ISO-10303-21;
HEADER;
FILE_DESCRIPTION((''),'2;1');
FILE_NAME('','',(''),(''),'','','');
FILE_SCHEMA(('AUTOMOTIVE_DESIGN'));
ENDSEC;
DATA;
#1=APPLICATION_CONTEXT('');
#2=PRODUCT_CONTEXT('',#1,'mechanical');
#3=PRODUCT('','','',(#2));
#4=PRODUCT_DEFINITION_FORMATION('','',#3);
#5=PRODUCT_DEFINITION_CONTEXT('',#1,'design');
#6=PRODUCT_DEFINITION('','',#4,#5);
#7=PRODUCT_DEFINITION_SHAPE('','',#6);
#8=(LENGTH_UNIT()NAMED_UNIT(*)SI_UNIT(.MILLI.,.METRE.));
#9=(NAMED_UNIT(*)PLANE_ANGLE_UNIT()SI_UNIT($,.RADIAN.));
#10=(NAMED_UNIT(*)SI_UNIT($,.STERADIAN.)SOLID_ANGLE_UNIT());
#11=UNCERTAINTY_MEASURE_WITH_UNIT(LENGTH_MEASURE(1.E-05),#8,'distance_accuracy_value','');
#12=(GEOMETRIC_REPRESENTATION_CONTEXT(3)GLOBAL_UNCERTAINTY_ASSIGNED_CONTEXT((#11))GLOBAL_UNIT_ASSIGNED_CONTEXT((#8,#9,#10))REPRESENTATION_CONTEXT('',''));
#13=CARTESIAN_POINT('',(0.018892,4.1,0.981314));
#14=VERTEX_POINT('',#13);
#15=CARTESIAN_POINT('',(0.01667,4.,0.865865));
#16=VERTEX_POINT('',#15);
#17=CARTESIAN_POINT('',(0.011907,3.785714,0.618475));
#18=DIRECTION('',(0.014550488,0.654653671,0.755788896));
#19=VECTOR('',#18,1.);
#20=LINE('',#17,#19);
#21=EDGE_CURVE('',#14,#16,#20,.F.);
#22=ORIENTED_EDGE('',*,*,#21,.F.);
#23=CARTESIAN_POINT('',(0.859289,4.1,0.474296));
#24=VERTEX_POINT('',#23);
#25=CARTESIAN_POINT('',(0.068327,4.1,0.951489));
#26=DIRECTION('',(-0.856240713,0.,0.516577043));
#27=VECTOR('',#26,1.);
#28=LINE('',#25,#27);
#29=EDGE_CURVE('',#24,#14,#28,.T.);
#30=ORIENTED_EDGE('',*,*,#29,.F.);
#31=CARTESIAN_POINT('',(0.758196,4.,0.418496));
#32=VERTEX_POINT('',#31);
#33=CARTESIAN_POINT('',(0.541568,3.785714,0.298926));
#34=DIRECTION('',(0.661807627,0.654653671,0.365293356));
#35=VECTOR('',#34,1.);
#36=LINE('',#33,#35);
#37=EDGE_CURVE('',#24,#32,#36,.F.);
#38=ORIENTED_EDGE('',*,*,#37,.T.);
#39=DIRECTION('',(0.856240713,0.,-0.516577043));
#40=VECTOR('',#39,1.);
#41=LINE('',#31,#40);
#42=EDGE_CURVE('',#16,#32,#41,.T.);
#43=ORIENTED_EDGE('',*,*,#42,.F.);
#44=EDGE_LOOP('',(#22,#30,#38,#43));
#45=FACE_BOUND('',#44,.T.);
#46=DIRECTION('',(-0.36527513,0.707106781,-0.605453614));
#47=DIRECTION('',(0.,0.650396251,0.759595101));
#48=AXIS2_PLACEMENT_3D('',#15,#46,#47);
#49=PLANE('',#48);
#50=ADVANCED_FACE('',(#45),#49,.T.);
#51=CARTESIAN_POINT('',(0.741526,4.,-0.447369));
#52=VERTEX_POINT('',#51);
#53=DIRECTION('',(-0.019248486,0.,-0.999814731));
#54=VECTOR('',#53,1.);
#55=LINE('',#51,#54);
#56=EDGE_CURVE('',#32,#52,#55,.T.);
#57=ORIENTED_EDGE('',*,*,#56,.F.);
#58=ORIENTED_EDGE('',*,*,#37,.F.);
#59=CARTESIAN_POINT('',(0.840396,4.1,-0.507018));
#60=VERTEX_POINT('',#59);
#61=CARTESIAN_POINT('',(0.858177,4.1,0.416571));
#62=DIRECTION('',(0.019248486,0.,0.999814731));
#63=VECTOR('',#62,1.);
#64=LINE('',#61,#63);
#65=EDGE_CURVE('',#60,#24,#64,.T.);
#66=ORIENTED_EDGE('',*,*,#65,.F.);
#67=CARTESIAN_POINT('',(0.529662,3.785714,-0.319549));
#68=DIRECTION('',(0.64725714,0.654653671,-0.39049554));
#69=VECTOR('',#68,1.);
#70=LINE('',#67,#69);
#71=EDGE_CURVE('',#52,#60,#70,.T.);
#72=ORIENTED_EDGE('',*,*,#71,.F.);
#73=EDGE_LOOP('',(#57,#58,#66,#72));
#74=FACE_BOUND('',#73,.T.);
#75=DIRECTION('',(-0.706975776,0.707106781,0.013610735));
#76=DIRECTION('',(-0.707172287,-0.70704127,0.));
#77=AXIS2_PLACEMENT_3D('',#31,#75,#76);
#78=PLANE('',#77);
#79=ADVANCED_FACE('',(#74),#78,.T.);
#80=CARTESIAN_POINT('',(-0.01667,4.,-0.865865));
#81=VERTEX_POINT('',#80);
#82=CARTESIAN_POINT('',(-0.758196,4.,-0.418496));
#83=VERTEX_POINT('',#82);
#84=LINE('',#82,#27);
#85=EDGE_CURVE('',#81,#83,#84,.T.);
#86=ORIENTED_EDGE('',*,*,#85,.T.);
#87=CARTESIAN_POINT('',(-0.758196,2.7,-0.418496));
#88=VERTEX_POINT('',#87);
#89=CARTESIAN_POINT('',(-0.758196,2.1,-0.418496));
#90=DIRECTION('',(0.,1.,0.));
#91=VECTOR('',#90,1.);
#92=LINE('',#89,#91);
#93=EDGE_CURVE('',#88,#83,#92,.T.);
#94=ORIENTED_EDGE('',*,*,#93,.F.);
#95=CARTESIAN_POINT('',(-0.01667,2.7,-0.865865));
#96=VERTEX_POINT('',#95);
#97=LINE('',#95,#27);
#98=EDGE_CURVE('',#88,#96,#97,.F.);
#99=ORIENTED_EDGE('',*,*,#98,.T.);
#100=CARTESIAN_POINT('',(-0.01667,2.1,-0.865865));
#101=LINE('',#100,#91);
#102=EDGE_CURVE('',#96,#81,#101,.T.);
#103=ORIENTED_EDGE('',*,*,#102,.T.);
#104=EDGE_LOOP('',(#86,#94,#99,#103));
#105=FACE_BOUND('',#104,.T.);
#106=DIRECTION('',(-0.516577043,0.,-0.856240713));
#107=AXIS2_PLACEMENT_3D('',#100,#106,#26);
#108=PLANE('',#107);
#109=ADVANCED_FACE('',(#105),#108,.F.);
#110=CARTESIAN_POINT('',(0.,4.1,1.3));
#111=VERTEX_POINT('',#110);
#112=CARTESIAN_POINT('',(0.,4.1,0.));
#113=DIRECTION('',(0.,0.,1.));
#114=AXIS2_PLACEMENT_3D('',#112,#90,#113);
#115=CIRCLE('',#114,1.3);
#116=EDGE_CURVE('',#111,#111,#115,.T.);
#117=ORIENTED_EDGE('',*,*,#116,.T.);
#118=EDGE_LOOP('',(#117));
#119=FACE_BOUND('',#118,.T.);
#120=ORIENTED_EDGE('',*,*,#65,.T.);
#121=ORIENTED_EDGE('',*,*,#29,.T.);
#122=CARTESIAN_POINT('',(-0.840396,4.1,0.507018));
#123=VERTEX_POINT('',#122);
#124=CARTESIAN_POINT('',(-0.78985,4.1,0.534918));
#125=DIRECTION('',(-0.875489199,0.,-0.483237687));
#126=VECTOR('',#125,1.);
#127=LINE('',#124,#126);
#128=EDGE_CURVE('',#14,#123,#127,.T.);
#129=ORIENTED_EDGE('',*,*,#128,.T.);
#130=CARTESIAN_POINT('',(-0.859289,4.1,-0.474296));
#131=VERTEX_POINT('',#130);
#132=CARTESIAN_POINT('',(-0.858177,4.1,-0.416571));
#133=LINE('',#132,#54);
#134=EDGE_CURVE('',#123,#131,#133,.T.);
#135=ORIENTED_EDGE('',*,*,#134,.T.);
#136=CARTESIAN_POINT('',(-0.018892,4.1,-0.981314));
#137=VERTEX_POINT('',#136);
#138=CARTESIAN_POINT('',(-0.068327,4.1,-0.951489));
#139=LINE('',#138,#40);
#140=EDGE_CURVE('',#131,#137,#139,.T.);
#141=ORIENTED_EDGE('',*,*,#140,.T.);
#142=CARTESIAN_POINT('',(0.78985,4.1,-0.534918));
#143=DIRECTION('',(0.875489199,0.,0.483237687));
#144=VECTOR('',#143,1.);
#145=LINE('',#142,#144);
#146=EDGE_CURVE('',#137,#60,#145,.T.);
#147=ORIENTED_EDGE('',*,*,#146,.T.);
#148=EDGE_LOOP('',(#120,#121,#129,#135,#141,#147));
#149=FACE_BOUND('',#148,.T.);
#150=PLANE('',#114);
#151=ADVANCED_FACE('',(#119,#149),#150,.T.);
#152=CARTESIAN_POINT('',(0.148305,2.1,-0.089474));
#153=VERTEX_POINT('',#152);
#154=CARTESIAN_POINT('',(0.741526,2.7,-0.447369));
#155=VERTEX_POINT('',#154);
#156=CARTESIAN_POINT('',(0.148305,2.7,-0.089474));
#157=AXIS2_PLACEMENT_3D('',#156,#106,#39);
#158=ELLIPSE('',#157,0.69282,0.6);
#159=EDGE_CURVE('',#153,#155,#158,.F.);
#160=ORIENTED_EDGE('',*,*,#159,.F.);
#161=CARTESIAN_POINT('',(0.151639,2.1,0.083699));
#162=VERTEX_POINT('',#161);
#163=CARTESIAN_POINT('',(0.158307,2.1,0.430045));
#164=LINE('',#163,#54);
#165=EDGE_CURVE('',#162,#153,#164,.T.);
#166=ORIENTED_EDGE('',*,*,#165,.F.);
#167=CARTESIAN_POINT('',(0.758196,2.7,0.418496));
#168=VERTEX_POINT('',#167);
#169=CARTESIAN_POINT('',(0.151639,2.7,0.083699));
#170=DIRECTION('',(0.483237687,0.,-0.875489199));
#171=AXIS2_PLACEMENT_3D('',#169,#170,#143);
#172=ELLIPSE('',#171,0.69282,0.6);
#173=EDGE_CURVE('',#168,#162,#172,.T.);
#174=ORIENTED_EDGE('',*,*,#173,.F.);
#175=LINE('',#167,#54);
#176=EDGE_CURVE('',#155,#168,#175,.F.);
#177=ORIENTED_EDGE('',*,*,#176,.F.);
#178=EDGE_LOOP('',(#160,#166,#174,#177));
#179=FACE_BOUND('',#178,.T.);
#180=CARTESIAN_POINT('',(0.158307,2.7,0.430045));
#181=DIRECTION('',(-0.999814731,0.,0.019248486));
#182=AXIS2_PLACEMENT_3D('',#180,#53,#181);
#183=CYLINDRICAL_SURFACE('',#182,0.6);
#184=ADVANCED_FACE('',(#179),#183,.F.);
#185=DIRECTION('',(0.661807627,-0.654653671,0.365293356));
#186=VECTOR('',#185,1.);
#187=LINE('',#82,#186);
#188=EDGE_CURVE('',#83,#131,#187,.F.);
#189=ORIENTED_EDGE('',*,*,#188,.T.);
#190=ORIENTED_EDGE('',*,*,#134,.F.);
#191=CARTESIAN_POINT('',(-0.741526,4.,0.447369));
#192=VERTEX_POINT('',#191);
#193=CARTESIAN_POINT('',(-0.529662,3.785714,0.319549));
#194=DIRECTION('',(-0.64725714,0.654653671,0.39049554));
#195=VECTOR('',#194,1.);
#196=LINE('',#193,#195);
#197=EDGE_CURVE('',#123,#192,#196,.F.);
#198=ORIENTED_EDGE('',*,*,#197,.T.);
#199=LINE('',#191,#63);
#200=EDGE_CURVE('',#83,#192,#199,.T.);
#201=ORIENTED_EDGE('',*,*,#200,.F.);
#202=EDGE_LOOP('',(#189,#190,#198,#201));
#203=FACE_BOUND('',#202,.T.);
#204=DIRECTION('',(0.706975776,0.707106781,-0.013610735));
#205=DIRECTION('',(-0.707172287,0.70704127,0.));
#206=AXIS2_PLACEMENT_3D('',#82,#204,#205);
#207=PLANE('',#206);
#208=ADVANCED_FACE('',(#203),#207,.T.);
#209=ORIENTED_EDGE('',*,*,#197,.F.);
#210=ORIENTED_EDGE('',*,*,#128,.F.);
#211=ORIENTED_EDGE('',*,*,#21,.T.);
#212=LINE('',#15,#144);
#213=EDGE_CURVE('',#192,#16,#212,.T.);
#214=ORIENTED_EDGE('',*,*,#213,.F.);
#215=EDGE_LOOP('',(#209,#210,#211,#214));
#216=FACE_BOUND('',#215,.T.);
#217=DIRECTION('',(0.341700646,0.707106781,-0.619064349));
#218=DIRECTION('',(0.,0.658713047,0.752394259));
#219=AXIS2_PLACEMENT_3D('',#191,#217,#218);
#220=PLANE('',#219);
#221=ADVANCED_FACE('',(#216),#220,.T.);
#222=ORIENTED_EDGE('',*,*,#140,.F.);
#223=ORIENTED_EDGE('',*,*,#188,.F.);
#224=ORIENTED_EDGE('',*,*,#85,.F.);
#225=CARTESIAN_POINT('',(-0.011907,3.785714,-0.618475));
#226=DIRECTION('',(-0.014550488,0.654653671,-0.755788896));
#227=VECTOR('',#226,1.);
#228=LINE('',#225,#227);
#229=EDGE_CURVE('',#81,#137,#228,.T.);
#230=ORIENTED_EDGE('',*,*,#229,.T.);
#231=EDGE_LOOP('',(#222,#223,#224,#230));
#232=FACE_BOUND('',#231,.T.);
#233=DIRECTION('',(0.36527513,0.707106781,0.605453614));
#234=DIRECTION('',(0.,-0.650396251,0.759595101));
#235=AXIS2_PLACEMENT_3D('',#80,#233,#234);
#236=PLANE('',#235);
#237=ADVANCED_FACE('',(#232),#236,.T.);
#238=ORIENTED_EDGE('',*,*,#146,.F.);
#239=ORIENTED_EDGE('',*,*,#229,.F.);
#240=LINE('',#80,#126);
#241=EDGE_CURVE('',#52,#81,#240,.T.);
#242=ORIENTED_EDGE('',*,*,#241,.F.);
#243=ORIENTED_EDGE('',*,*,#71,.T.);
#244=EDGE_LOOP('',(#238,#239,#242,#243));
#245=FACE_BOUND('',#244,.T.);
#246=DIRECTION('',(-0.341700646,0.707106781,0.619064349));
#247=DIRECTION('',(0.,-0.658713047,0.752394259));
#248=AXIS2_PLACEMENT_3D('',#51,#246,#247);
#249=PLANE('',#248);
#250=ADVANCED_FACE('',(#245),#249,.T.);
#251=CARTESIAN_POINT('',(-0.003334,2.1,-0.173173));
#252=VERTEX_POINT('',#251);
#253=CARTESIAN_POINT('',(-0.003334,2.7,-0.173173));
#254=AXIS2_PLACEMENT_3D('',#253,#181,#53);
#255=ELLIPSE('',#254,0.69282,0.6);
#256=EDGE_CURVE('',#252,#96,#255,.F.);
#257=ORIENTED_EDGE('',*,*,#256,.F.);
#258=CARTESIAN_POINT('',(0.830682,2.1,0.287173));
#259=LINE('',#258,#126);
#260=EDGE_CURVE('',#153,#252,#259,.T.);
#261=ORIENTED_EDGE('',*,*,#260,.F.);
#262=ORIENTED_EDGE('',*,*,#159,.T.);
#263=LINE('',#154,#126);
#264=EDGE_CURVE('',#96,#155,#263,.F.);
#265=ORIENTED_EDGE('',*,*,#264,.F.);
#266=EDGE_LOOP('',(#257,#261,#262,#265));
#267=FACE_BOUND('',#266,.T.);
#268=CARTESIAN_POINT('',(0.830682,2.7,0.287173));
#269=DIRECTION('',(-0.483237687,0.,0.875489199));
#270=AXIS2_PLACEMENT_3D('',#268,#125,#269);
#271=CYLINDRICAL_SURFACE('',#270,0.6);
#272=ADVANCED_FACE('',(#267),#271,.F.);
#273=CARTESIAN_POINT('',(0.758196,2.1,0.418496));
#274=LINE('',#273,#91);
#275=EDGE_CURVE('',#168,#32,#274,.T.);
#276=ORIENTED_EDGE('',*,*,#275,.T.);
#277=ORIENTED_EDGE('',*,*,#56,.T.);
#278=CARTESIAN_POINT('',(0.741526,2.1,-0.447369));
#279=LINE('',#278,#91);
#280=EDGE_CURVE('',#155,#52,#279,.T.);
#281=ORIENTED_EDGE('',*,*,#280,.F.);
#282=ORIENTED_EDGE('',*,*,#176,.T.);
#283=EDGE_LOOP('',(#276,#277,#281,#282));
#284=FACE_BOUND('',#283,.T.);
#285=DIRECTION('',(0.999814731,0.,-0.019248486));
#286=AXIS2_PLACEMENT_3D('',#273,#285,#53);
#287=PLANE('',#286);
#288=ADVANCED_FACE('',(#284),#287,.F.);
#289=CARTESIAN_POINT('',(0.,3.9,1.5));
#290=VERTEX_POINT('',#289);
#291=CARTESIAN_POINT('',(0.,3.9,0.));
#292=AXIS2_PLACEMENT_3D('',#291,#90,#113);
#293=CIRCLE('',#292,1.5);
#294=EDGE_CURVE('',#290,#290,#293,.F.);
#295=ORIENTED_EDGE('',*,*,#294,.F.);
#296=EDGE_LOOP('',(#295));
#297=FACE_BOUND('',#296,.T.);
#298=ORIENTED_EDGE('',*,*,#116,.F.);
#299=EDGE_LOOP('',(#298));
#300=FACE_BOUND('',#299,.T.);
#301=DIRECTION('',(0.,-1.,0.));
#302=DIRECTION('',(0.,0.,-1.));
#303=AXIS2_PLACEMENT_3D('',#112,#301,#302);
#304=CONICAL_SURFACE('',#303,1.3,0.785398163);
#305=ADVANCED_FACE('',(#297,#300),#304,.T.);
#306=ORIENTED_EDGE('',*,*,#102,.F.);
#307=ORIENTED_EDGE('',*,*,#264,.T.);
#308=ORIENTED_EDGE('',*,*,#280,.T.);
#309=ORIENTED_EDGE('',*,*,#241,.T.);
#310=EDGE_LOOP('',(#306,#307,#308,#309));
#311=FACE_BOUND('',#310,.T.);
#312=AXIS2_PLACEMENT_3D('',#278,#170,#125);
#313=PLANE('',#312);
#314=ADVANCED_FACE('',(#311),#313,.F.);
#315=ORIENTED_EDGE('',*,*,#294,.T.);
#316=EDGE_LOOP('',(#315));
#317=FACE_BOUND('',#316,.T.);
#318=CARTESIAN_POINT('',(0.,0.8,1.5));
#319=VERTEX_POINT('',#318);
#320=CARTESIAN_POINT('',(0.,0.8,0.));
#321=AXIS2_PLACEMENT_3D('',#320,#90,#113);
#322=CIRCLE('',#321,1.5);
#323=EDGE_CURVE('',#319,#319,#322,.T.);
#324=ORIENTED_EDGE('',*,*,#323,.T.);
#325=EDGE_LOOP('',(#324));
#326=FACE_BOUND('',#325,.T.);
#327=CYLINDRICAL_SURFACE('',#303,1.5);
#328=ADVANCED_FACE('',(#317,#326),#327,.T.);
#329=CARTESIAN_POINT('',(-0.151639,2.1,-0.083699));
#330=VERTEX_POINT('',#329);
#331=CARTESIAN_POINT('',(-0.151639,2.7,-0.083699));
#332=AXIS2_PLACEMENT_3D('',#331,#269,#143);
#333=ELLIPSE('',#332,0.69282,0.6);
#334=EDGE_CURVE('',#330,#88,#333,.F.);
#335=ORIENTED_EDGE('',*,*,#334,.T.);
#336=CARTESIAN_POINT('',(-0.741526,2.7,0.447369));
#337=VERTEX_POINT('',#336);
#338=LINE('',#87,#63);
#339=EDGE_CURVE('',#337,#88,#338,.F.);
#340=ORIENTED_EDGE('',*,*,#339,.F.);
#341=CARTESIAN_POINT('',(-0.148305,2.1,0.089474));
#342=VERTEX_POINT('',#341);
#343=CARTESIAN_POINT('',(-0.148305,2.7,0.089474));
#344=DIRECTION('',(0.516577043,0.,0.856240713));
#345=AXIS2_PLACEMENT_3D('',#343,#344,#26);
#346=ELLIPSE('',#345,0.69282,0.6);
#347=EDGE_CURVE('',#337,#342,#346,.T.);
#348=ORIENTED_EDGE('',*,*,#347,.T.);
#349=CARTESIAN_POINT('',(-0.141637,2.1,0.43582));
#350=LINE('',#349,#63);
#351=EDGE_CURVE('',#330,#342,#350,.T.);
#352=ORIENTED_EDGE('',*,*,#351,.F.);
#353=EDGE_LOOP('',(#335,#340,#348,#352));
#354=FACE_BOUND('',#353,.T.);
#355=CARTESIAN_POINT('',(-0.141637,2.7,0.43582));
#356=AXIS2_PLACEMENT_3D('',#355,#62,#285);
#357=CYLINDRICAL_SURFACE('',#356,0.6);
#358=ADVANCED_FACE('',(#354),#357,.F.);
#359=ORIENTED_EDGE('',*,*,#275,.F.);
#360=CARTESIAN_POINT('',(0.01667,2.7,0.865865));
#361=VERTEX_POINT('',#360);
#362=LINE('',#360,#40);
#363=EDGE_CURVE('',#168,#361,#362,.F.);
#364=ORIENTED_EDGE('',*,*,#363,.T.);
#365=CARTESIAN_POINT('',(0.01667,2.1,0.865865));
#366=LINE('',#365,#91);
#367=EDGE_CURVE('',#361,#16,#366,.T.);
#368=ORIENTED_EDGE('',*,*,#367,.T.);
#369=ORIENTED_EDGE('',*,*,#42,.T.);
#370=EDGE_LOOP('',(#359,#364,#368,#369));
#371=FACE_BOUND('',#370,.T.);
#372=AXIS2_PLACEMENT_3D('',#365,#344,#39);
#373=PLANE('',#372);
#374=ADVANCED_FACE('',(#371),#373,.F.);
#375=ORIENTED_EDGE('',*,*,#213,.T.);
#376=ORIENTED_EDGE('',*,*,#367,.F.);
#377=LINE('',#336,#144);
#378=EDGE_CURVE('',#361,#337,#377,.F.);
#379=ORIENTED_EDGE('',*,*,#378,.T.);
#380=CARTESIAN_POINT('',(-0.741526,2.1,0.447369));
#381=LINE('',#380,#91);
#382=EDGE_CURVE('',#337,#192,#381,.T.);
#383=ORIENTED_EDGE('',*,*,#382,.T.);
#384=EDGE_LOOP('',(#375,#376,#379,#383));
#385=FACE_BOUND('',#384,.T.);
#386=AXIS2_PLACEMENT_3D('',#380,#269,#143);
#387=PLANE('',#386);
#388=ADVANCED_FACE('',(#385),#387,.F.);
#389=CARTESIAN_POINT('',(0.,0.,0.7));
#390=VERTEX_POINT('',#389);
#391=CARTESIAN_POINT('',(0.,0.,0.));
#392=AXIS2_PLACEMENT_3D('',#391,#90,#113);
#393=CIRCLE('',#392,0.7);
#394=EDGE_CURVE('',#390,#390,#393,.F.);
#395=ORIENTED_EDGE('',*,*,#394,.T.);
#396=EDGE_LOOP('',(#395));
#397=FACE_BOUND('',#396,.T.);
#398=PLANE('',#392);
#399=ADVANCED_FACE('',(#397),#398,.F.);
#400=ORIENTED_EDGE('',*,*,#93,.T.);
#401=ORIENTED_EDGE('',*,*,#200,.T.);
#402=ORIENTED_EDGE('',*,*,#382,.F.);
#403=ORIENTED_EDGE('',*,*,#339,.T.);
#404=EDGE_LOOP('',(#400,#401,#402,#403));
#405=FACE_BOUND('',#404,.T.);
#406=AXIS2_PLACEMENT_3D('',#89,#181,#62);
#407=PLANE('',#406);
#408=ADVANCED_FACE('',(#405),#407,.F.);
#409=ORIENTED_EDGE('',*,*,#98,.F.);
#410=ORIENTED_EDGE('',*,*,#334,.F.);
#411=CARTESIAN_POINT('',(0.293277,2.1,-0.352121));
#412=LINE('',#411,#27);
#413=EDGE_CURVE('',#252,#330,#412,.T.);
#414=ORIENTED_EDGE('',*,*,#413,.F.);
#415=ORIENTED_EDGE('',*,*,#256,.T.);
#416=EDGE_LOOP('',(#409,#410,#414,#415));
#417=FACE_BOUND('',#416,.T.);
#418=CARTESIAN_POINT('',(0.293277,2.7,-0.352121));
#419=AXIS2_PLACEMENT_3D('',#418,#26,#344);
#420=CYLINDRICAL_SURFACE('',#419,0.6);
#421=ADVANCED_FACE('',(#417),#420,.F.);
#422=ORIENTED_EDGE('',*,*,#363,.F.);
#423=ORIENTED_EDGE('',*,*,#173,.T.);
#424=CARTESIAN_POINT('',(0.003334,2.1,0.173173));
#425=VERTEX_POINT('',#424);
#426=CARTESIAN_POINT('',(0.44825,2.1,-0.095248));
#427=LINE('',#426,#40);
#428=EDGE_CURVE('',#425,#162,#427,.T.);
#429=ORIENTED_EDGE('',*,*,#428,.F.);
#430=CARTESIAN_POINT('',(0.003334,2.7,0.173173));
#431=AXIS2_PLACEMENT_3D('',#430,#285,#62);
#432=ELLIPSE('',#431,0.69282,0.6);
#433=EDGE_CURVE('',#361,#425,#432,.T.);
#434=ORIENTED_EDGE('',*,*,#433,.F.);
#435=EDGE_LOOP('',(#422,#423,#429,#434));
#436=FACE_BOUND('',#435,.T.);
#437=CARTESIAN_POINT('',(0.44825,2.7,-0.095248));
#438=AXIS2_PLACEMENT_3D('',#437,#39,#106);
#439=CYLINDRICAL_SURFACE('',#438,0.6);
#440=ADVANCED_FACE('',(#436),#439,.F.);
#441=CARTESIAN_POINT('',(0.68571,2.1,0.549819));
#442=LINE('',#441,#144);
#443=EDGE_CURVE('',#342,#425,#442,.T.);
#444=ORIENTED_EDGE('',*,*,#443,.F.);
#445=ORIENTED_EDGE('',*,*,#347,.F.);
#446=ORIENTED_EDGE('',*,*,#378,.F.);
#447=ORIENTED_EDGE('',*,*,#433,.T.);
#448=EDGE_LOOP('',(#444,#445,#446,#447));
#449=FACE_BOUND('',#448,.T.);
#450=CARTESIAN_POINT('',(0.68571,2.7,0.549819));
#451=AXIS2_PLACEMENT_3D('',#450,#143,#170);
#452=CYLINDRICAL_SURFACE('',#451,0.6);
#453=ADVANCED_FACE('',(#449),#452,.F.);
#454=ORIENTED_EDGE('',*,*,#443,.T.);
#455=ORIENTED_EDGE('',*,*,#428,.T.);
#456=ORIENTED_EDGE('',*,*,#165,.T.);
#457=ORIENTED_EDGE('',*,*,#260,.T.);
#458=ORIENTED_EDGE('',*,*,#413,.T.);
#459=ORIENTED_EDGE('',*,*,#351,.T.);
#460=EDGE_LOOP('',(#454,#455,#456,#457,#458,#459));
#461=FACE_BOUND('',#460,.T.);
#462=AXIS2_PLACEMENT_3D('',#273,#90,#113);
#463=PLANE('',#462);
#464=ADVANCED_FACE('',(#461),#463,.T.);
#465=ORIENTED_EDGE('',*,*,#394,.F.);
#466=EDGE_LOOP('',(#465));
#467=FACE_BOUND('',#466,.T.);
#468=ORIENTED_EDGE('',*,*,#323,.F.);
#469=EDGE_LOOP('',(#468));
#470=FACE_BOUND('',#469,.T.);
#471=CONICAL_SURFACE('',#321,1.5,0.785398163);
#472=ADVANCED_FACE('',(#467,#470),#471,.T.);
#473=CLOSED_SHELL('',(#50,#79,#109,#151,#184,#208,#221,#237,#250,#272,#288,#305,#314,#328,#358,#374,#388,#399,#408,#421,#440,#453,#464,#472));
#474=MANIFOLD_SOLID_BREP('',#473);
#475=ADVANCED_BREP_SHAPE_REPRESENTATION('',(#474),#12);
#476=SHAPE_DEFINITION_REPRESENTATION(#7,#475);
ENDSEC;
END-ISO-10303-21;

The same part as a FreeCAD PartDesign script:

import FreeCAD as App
import Part
import Sketcher
from FreeCAD import Vector
Q = App.Units.Quantity


def edges_at(feature, points):
    """Names of the edges that pass closest to the given points."""
    edges = feature.Shape.Edges
    near = lambda p: min(range(len(edges)), key=lambda i: edges[i].distToShape(Part.Vertex(*p))[0])
    return sorted({f"Edge{near(p) + 1}" for p in points})


def add_polygon(sketch, points):
    """Adds a closed chain of lines whose ends are joined by coincident constraints."""
    first, n = sketch.GeometryCount, len(points)
    for a, b in zip(points, points[1:] + points[:1]):
        sketch.addGeometry(Part.LineSegment(App.Vector(*a, 0), App.Vector(*b, 0)), False)
    for i in range(n):
        sketch.addConstraint(Sketcher.Constraint("Coincident", first + i, 2, first + (i + 1) % n, 1))

doc = App.newDocument("Part")
body = doc.addObject("PartDesign::Body", "Body")

sketch1 = body.newObject("Sketcher::SketchObject", "Sketch")
sketch1.AttachmentSupport = (doc.getObject("XZ_Plane"), [""])
sketch1.MapMode = "FlatFace"
sketch1.addGeometry(Part.Circle(Vector(0, 0, 0), Vector(0, 0, 1), 1.5), False)
sketch1.addConstraint(Sketcher.Constraint("Coincident", 0, 3, -1, 1))
sketch1.addConstraint(Sketcher.Constraint("Diameter", 0, Q("3 mm")))
pad1 = body.newObject("PartDesign::Pad", "Pad")
pad1.Profile = sketch1
pad1.Length = 4.1
pad1.Reversed = True

sketch2 = body.newObject("Sketcher::SketchObject", "Sketch001")
sketch2.AttachmentSupport = (doc.getObject("XZ_Plane"), [""])
sketch2.MapMode = "FlatFace"
sketch2.AttachmentOffset = App.Placement(Vector(0, 0, -4.1), App.Rotation())
add_polygon(sketch2, [(0.8, 0.4), (0.7, -0.4), (0, -0.9), (-0.8, -0.4), (-0.7, 0.4), (0, 0.9)])
sketch2.addConstraint(Sketcher.Constraint("Symmetric", 0, 2, 3, 2, -1, 1))
sketch2.addConstraint(Sketcher.Constraint("Symmetric", 1, 2, 4, 2, -1, 1))
sketch2.addConstraint(Sketcher.Constraint("Symmetric", 2, 2, 5, 2, -1, 1))
sketch2.addConstraint(Sketcher.Constraint("Equal", 0, 1))
sketch2.addConstraint(Sketcher.Constraint("Equal", 1, 2))
sketch2.addConstraint(Sketcher.Constraint("DistanceY", 0, 2, -1, 1, Q("0.447369 mm")))
sketch2.addConstraint(Sketcher.Constraint("DistanceX", 1, 2, -1, 1, Q("0.01667 mm")))
sketch2.addConstraint(Sketcher.Constraint("DistanceY", 1, 2, 2, 2, Q("0.447369 mm")))
sketch2.addConstraint(Sketcher.Constraint("DistanceX", 2, 2, 3, 2, Q("0.01667 mm")))
pocket1 = body.newObject("PartDesign::Pocket", "Pocket")
pocket1.Profile = sketch2
pocket1.Length = 2
pocket1.Reversed = True
doc.recompute()

chamfer = body.newObject("PartDesign::Chamfer", "Chamfer")
chamfer.Base = (pocket1, edges_at(pocket1, [(-1.5, 4.1, 0)]))
chamfer.Size = 0.2
doc.recompute()

chamfer2 = body.newObject("PartDesign::Chamfer", "Chamfer001")
chamfer2.Base = (chamfer, edges_at(chamfer, [
    (0.387, 4.1, 0.642),
    (0.75, 4.1, -0.014),
    (0.362, 4.1, -0.657),
    (-0.387, 4.1, -0.642),
    (-0.75, 4.1, 0.014),
    (-0.362, 4.1, 0.657),
]))
chamfer2.Size = 0.1
doc.recompute()

fillet = body.newObject("PartDesign::Fillet", "Fillet")
fillet.Base = (chamfer2, edges_at(chamfer2, [
    (0.75, 2.1, -0.014),
    (0.387, 2.1, 0.642),
    (-0.362, 2.1, 0.657),
    (-0.75, 2.1, 0.014),
    (-0.387, 2.1, -0.642),
    (0.362, 2.1, -0.657),
]))
fillet.Radius = 0.6
doc.recompute()

chamfer3 = body.newObject("PartDesign::Chamfer", "Chamfer002")
chamfer3.Base = (fillet, edges_at(fillet, [(-1.5, 0, 0)]))
chamfer3.Size = 0.8

doc.recompute()
